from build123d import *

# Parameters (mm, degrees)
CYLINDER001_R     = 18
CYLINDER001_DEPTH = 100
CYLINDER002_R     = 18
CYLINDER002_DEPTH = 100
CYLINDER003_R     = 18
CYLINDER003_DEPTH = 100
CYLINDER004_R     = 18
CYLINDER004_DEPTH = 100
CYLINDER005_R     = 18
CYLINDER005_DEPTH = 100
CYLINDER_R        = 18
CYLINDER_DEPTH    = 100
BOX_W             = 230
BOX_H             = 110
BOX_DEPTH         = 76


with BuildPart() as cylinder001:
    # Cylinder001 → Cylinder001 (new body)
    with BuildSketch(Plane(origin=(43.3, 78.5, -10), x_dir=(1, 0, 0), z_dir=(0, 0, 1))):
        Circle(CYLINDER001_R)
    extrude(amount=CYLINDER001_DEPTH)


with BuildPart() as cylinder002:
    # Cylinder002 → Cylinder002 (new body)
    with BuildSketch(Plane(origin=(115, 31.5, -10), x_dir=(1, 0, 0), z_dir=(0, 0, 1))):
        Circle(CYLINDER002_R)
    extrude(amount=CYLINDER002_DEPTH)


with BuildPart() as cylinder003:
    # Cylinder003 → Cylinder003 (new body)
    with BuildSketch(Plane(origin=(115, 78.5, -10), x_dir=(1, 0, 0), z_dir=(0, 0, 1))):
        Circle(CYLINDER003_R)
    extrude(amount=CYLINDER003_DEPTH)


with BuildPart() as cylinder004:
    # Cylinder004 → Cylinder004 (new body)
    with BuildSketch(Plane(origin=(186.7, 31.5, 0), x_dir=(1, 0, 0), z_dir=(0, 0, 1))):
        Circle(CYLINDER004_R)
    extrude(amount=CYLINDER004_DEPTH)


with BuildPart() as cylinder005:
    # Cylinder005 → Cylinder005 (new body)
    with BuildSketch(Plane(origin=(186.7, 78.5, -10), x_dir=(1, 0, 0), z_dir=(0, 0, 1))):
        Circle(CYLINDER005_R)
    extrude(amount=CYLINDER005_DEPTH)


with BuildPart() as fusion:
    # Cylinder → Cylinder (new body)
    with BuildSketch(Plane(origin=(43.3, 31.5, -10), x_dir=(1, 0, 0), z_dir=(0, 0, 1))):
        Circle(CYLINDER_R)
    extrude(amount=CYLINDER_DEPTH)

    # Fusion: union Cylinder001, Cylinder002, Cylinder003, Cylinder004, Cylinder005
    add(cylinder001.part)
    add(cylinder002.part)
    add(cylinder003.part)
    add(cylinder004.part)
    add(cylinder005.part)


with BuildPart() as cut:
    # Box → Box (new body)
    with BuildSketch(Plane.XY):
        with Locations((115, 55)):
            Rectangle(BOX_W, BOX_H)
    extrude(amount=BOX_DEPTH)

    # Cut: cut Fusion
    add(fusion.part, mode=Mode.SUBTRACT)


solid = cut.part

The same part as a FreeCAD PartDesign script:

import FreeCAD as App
import Part
import Sketcher
Q = App.Units.Quantity


def add_polygon(sketch, points):
    """Adds a closed chain of lines whose ends are joined by coincident constraints."""
    first, n = sketch.GeometryCount, len(points)
    for a, b in zip(points, points[1:] + points[:1]):
        sketch.addGeometry(Part.LineSegment(App.Vector(*a, 0), App.Vector(*b, 0)), False)
    for i in range(n):
        sketch.addConstraint(Sketcher.Constraint("Coincident", first + i, 2, first + (i + 1) % n, 1))

doc = App.newDocument("Part")
body = doc.addObject("PartDesign::Body", "Body")

# Sketch on XY plane
sketch1 = doc.addObject("Sketcher::SketchObject", "Sketch")
body.addObject(sketch1)
sketch1.AttachmentSupport = (doc.XY_Plane, [""])
sketch1.MapMode = "FlatFace"
sketch1.AttachmentOffset = App.Placement(App.Vector(0, 0, -10), App.Rotation())
sketch1.addGeometry(Part.Circle(App.Vector(43.3, 78.5, 0), App.Vector(0, 0, 1), 18), False)
sketch1.addConstraint([
    Sketcher.Constraint("Diameter", 0, Q("36 mm")),
    Sketcher.Constraint("DistanceX", -1, 1, 0, 3, Q("43.3 mm")),
    Sketcher.Constraint("DistanceY", -1, 1, 0, 3, Q("78.5 mm")),
])
pad1 = doc.addObject("PartDesign::Pad", "Pad")
body.addObject(pad1)
pad1.Profile = sketch1
pad1.Length = 100
body2 = doc.addObject("PartDesign::Body", "Body001")

# Sketch on XY plane
sketch2 = doc.addObject("Sketcher::SketchObject", "Sketch001")
body2.addObject(sketch2)
sketch2.AttachmentSupport = (doc.getObject("XY_Plane001"), [""])
sketch2.MapMode = "FlatFace"
sketch2.AttachmentOffset = App.Placement(App.Vector(0, 0, -10), App.Rotation())
sketch2.addGeometry(Part.Circle(App.Vector(115, 31.5, 0), App.Vector(0, 0, 1), 18), False)
sketch2.addConstraint([
    Sketcher.Constraint("Diameter", 0, Q("36 mm")),
    Sketcher.Constraint("DistanceX", -1, 1, 0, 3, Q("115 mm")),
    Sketcher.Constraint("DistanceY", -1, 1, 0, 3, Q("31.5 mm")),
])
pad2 = doc.addObject("PartDesign::Pad", "Pad001")
body2.addObject(pad2)
pad2.Profile = sketch2
pad2.Length = 100
body3 = doc.addObject("PartDesign::Body", "Body002")

# Sketch on XY plane
sketch3 = doc.addObject("Sketcher::SketchObject", "Sketch002")
body3.addObject(sketch3)
sketch3.AttachmentSupport = (doc.getObject("XY_Plane002"), [""])
sketch3.MapMode = "FlatFace"
sketch3.AttachmentOffset = App.Placement(App.Vector(0, 0, -10), App.Rotation())
sketch3.addGeometry(Part.Circle(App.Vector(115, 78.5, 0), App.Vector(0, 0, 1), 18), False)
sketch3.addConstraint([
    Sketcher.Constraint("Diameter", 0, Q("36 mm")),
    Sketcher.Constraint("DistanceX", -1, 1, 0, 3, Q("115 mm")),
    Sketcher.Constraint("DistanceY", -1, 1, 0, 3, Q("78.5 mm")),
])
pad3 = doc.addObject("PartDesign::Pad", "Pad002")
body3.addObject(pad3)
pad3.Profile = sketch3
pad3.Length = 100
body4 = doc.addObject("PartDesign::Body", "Body003")

# Sketch on XY plane
sketch4 = doc.addObject("Sketcher::SketchObject", "Sketch003")
body4.addObject(sketch4)
sketch4.AttachmentSupport = (doc.getObject("XY_Plane003"), [""])
sketch4.MapMode = "FlatFace"
sketch4.addGeometry(Part.Circle(App.Vector(186.7, 31.5, 0), App.Vector(0, 0, 1), 18), False)
sketch4.addConstraint([
    Sketcher.Constraint("Diameter", 0, Q("36 mm")),
    Sketcher.Constraint("DistanceX", -1, 1, 0, 3, Q("186.7 mm")),
    Sketcher.Constraint("DistanceY", -1, 1, 0, 3, Q("31.5 mm")),
])
pad4 = doc.addObject("PartDesign::Pad", "Pad003")
body4.addObject(pad4)
pad4.Profile = sketch4
pad4.Length = 100
body5 = doc.addObject("PartDesign::Body", "Body004")

# Sketch on XY plane
sketch5 = doc.addObject("Sketcher::SketchObject", "Sketch004")
body5.addObject(sketch5)
sketch5.AttachmentSupport = (doc.getObject("XY_Plane004"), [""])
sketch5.MapMode = "FlatFace"
sketch5.AttachmentOffset = App.Placement(App.Vector(0, 0, -10), App.Rotation())
sketch5.addGeometry(Part.Circle(App.Vector(186.7, 78.5, 0), App.Vector(0, 0, 1), 18), False)
sketch5.addConstraint([
    Sketcher.Constraint("Diameter", 0, Q("36 mm")),
    Sketcher.Constraint("DistanceX", -1, 1, 0, 3, Q("186.7 mm")),
    Sketcher.Constraint("DistanceY", -1, 1, 0, 3, Q("78.5 mm")),
])
pad5 = doc.addObject("PartDesign::Pad", "Pad004")
body5.addObject(pad5)
pad5.Profile = sketch5
pad5.Length = 100
body6 = doc.addObject("PartDesign::Body", "Body005")
body6.AllowCompound = True

# Sketch on XY plane
sketch6 = doc.addObject("Sketcher::SketchObject", "Sketch005")
body6.addObject(sketch6)
sketch6.AttachmentSupport = (doc.getObject("XY_Plane005"), [""])
sketch6.MapMode = "FlatFace"
sketch6.AttachmentOffset = App.Placement(App.Vector(0, 0, -10), App.Rotation())
sketch6.addGeometry(Part.Circle(App.Vector(43.3, 31.5, 0), App.Vector(0, 0, 1), 18), False)
sketch6.addConstraint([
    Sketcher.Constraint("Diameter", 0, Q("36 mm")),
    Sketcher.Constraint("DistanceX", -1, 1, 0, 3, Q("43.3 mm")),
    Sketcher.Constraint("DistanceY", -1, 1, 0, 3, Q("31.5 mm")),
])
pad6 = doc.addObject("PartDesign::Pad", "Pad005")
body6.addObject(pad6)
pad6.Profile = sketch6
pad6.Length = 100
doc.recompute()

boolean = doc.addObject("PartDesign::Boolean", "Boolean")
body6.addObject(boolean)
boolean.Type = "Fuse"
boolean.addObjects([body])
doc.recompute()

boolean2 = doc.addObject("PartDesign::Boolean", "Boolean001")
body6.addObject(boolean2)
boolean2.Type = "Fuse"
boolean2.addObjects([body2])
doc.recompute()

boolean3 = doc.addObject("PartDesign::Boolean", "Boolean002")
body6.addObject(boolean3)
boolean3.Type = "Fuse"
boolean3.addObjects([body3])
doc.recompute()

boolean4 = doc.addObject("PartDesign::Boolean", "Boolean003")
body6.addObject(boolean4)
boolean4.Type = "Fuse"
boolean4.addObjects([body4])
doc.recompute()

boolean5 = doc.addObject("PartDesign::Boolean", "Boolean004")
body6.addObject(boolean5)
boolean5.Type = "Fuse"
boolean5.addObjects([body5])
body7 = doc.addObject("PartDesign::Body", "Body006")

# Sketch on XY plane
sketch7 = doc.addObject("Sketcher::SketchObject", "Sketch006")
body7.addObject(sketch7)
sketch7.AttachmentSupport = (doc.getObject("XY_Plane006"), [""])
sketch7.MapMode = "FlatFace"
add_polygon(sketch7, [(0, 110), (0, 0), (230, 0), (230, 110)])  # lines 0-3
sketch7.addConstraint([
    Sketcher.Constraint("Vertical", 0),
    Sketcher.Constraint("Horizontal", 1),
    Sketcher.Constraint("Vertical", 2),
    Sketcher.Constraint("Horizontal", 3),
    Sketcher.Constraint("Coincident", 0, 2, -1, 1),
    Sketcher.Constraint("DistanceX", 1, 1, 1, 2, Q("230 mm")),
    Sketcher.Constraint("DistanceY", 0, 2, 0, 1, Q("110 mm")),
])
pad7 = doc.addObject("PartDesign::Pad", "Pad006")
body7.addObject(pad7)
pad7.Profile = sketch7
pad7.Length = 76
doc.recompute()

boolean6 = doc.addObject("PartDesign::Boolean", "Boolean005")
body7.addObject(boolean6)
boolean6.Type = "Cut"
boolean6.addObjects([body6])

doc.recompute()
